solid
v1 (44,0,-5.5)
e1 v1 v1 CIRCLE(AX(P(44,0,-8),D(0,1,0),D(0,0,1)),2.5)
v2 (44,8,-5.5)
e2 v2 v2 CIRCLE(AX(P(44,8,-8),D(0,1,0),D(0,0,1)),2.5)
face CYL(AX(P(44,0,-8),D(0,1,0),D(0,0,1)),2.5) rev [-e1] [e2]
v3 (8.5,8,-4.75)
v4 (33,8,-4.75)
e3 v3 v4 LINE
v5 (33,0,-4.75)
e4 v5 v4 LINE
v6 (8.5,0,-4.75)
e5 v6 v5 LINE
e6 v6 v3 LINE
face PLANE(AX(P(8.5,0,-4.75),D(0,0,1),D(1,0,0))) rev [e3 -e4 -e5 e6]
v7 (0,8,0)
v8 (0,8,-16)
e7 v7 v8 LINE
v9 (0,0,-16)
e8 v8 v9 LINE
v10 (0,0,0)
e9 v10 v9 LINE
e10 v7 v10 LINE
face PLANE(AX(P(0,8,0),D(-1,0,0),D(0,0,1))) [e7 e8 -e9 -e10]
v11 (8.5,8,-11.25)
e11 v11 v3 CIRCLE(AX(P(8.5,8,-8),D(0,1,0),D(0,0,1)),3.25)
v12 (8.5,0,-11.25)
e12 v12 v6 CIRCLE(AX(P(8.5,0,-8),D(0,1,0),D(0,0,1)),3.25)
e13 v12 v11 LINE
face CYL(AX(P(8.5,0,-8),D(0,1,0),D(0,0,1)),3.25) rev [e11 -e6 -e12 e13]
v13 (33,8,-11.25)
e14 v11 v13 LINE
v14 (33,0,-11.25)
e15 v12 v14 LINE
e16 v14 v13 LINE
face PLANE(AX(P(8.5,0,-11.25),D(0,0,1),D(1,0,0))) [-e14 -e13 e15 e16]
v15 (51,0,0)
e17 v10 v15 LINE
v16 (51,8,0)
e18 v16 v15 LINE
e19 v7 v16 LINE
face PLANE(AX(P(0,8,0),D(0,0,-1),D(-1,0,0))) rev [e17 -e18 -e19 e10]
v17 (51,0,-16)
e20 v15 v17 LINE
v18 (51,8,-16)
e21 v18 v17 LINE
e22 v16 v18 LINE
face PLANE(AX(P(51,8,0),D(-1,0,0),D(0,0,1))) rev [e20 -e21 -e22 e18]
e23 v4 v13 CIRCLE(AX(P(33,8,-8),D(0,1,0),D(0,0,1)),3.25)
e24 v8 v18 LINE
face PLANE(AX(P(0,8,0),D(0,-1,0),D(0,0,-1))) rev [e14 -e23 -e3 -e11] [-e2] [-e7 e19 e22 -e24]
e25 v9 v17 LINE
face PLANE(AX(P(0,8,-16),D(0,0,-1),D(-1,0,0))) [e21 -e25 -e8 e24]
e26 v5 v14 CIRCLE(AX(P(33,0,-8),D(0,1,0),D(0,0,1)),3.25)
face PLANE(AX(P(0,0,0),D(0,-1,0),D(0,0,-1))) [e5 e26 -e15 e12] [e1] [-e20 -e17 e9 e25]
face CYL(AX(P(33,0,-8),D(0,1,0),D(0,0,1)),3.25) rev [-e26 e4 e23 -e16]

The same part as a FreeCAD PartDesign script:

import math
import FreeCAD as App
import Part
import Sketcher

V = App.Vector

doc = App.newDocument("Part")
params = doc.addObject("Spreadsheet::Sheet", "Params")
for row, (alias, value) in enumerate([
    ("sketch1_width", "51 mm"),
    ("sketch1_height", "16 mm"),
    ("pad1_length", "8 mm"),
    ("sketch2_radius", "3.25 mm"),
    ("sketch2_width", "24.5 mm"),
    ("sketch3_diameter", "5 mm"),
], start=1):
    params.set(f"A{row}", alias)
    params.set(f"B{row}", "=" + value)
    params.setAlias(f"B{row}", alias)

body = doc.addObject("PartDesign::Body", "Body")

# Sketch on XZ plane
sketch1 = doc.addObject("Sketcher::SketchObject", "Sketch")
body.addObject(sketch1)
sketch1.AttachmentSupport = (doc.XZ_Plane, [""])
sketch1.MapMode = "FlatFace"
sketch1.addGeometry(Part.LineSegment(V(0, -16, 0), V(0, 0, 0)), False)
sketch1.addGeometry(Part.LineSegment(V(0, 0, 0), V(51, 0, 0)), False)
sketch1.addGeometry(Part.LineSegment(V(51, 0, 0), V(51, -16, 0)), False)
sketch1.addGeometry(Part.LineSegment(V(51, -16, 0), V(0, -16, 0)), False)
sketch1.addConstraint(Sketcher.Constraint("Coincident", 0, 2, 1, 1))
sketch1.addConstraint(Sketcher.Constraint("Coincident", 1, 2, 2, 1))
sketch1.addConstraint(Sketcher.Constraint("Coincident", 2, 2, 3, 1))
sketch1.addConstraint(Sketcher.Constraint("Coincident", 3, 2, 0, 1))
sketch1.addConstraint(Sketcher.Constraint("Vertical", 0))
sketch1.addConstraint(Sketcher.Constraint("Horizontal", 1))
sketch1.addConstraint(Sketcher.Constraint("Vertical", 2))
sketch1.addConstraint(Sketcher.Constraint("Horizontal", 3))
sketch1.addConstraint(Sketcher.Constraint("Coincident", 0, 2, -1, 1))
sketch1.addConstraint(Sketcher.Constraint("DistanceX", 1, 1, 1, 2, 51.0))
sketch1.addConstraint(Sketcher.Constraint("DistanceY", 0, 1, 0, 2, 16.0))
sketch1.setExpression("Constraints[9]", "Params.sketch1_width")
sketch1.setExpression("Constraints[10]", "Params.sketch1_height")
pad1 = doc.addObject("PartDesign::Pad", "Pad")
body.addObject(pad1)
pad1.Profile = sketch1
pad1.setExpression("Length", "Params.pad1_length")
pad1.Reversed = True

# Sketch on XZ plane
sketch2 = doc.addObject("Sketcher::SketchObject", "Sketch001")
body.addObject(sketch2)
sketch2.AttachmentSupport = (doc.XZ_Plane, [""])
sketch2.MapMode = "FlatFace"
sketch2.AttachmentOffset = App.Placement(V(0, 0, -8), App.Rotation())
sketch2.addGeometry(Part.LineSegment(V(33, -11.2, 0), V(8.5, -11.2, 0)), False)
sketch2.addGeometry(Part.ArcOfCircle(Part.Circle(V(8.5, -8, 0), V(0, 0, 1), 3.2), math.radians(90), math.radians(270)), False)
sketch2.addGeometry(Part.LineSegment(V(8.5, -4.8, 0), V(33, -4.8, 0)), False)
sketch2.addGeometry(Part.ArcOfCircle(Part.Circle(V(33, -8, 0), V(0, 0, 1), 3.2), math.radians(-90), math.radians(90)), False)
sketch2.addConstraint(Sketcher.Constraint("Tangent", 0, 2, 1, 2))
sketch2.addConstraint(Sketcher.Constraint("Tangent", 1, 1, 2, 1))
sketch2.addConstraint(Sketcher.Constraint("Tangent", 2, 2, 3, 2))
sketch2.addConstraint(Sketcher.Constraint("Tangent", 3, 1, 0, 1))
sketch2.addConstraint(Sketcher.Constraint("Horizontal", 0))
sketch2.addConstraint(Sketcher.Constraint("Horizontal", 2))
sketch2.addConstraint(Sketcher.Constraint("Radius", 1, 3.25))
sketch2.addConstraint(Sketcher.Constraint("DistanceX", 0, 2, 0, 1, 24.5))
sketch2.addConstraint(Sketcher.Constraint("DistanceY", 1, 3, -1, 1, 8.0))
sketch2.addConstraint(Sketcher.Constraint("DistanceX", -1, 1, 3, 3, 33.0))
sketch2.setExpression("Constraints[6]", "Params.sketch2_radius")
sketch2.setExpression("Constraints[7]", "Params.sketch2_width")
pocket1 = doc.addObject("PartDesign::Pocket", "Pocket")
body.addObject(pocket1)
pocket1.Profile = sketch2
pocket1.Type = "ThroughAll"
pocket1.Reversed = True

# Sketch on XZ plane
sketch3 = doc.addObject("Sketcher::SketchObject", "Sketch002")
body.addObject(sketch3)
sketch3.AttachmentSupport = (doc.XZ_Plane, [""])
sketch3.MapMode = "FlatFace"
sketch3.AttachmentOffset = App.Placement(V(0, 0, -8), App.Rotation())
sketch3.addGeometry(Part.Circle(V(44, -8, 0), V(0, 0, 1), 2.5), False)
sketch3.addConstraint(Sketcher.Constraint("Diameter", 0, 5.0))
sketch3.addConstraint(Sketcher.Constraint("DistanceX", -1, 1, 0, 3, 44.0))
sketch3.addConstraint(Sketcher.Constraint("DistanceY", 0, 3, -1, 1, 8.0))
sketch3.setExpression("Constraints[0]", "Params.sketch3_diameter")
pocket2 = doc.addObject("PartDesign::Pocket", "Pocket001")
body.addObject(pocket2)
pocket2.Profile = sketch3
pocket2.Type = "ThroughAll"
pocket2.Reversed = True

doc.recompute()
